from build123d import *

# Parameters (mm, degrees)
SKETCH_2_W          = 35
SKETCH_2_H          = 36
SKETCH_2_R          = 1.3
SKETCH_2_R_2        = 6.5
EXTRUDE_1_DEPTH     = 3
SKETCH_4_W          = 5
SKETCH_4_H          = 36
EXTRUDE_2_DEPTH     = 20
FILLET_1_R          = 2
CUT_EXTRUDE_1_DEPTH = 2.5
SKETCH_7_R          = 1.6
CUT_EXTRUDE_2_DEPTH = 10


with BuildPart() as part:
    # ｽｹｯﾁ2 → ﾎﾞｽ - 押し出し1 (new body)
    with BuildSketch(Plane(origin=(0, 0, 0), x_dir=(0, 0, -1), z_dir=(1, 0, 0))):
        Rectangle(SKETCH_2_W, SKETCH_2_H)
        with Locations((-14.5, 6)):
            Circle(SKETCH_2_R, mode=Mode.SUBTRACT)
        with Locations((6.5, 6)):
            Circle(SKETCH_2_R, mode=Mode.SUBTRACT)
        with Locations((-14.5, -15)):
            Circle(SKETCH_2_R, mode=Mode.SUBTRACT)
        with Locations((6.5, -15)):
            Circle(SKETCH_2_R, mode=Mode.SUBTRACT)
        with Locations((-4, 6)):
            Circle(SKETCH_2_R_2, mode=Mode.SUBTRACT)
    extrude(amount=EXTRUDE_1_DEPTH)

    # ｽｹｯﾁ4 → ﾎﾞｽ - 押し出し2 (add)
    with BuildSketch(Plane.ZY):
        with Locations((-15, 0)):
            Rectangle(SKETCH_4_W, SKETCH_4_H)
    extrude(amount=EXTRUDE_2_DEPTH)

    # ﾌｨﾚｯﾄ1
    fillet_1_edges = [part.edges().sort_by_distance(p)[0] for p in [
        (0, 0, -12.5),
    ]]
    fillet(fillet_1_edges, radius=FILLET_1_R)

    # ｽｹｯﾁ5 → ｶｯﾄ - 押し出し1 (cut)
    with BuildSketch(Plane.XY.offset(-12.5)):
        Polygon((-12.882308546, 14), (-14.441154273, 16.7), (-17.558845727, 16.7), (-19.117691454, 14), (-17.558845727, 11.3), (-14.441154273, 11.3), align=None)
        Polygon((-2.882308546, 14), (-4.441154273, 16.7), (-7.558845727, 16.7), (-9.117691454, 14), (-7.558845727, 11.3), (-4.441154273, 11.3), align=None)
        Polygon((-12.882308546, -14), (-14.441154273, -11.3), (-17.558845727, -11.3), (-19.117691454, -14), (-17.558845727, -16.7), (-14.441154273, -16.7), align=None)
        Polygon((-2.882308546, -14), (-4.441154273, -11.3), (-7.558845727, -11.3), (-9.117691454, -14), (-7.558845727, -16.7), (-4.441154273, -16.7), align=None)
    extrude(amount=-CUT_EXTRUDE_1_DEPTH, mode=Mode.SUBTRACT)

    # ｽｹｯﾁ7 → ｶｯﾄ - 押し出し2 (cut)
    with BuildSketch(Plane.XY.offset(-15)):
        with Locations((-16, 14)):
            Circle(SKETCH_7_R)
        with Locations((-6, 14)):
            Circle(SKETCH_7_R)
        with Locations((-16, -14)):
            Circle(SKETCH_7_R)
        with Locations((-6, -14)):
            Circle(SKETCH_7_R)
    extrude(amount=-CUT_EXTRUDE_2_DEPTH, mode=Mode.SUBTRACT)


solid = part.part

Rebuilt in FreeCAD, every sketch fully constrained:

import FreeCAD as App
import Part
import Sketcher
Q = App.Units.Quantity


def edges_at(feature, points):
    """Names of the edges that pass closest to the given points."""
    edges = feature.Shape.Edges
    near = lambda p: min(range(len(edges)), key=lambda i: edges[i].distToShape(Part.Vertex(*p))[0])
    return sorted({f"Edge{near(p) + 1}" for p in points})

doc = App.newDocument("Part")
body = doc.addObject("PartDesign::Body", "Body")

sketch1 = doc.addObject("Sketcher::SketchObject", "Sketch")
body.addObject(sketch1)
sketch1.AttachmentSupport = (doc.YZ_Plane, [""])
sketch1.MapMode = "FlatFace"
sketch1.addGeometry(Part.LineSegment(App.Vector(18, 17.5, 0), App.Vector(-18, 17.5, 0)), False)
sketch1.addGeometry(Part.LineSegment(App.Vector(-18, 17.5, 0), App.Vector(-18, -17.5, 0)), False)
sketch1.addGeometry(Part.LineSegment(App.Vector(-18, -17.5, 0), App.Vector(18, -17.5, 0)), False)
sketch1.addGeometry(Part.LineSegment(App.Vector(18, -17.5, 0), App.Vector(18, 17.5, 0)), False)
sketch1.addGeometry(Part.Circle(App.Vector(-15, 14.5, 0), App.Vector(0, 0, 1), 1.3), False)
sketch1.addGeometry(Part.Circle(App.Vector(-15, -6.5, 0), App.Vector(0, 0, 1), 1.3), False)
sketch1.addGeometry(Part.Circle(App.Vector(6, 14.5, 0), App.Vector(0, 0, 1), 1.3), False)
sketch1.addGeometry(Part.Circle(App.Vector(6, 4, 0), App.Vector(0, 0, 1), 6.5), False)
sketch1.addGeometry(Part.Circle(App.Vector(6, -6.5, 0), App.Vector(0, 0, 1), 1.3), False)
sketch1.addConstraint(Sketcher.Constraint("Coincident", 0, 2, 1, 1))
sketch1.addConstraint(Sketcher.Constraint("Coincident", 1, 2, 2, 1))
sketch1.addConstraint(Sketcher.Constraint("Coincident", 2, 2, 3, 1))
sketch1.addConstraint(Sketcher.Constraint("Coincident", 3, 2, 0, 1))
sketch1.addConstraint(Sketcher.Constraint("Horizontal", 0))
sketch1.addConstraint(Sketcher.Constraint("Vertical", 1))
sketch1.addConstraint(Sketcher.Constraint("Horizontal", 2))
sketch1.addConstraint(Sketcher.Constraint("Vertical", 3))
sketch1.addConstraint(Sketcher.Constraint("Equal", 4, 5))
sketch1.addConstraint(Sketcher.Constraint("Equal", 5, 6))
sketch1.addConstraint(Sketcher.Constraint("Equal", 6, 8))
sketch1.addConstraint(Sketcher.Constraint("Symmetric", 0, 2, 2, 2, -1, 1))
sketch1.addConstraint(Sketcher.Constraint("Horizontal", 4, 3, 6, 3))
sketch1.addConstraint(Sketcher.Constraint("Horizontal", 5, 3, 8, 3))
sketch1.addConstraint(Sketcher.Constraint("Vertical", 4, 3, 5, 3))
sketch1.addConstraint(Sketcher.Constraint("Vertical", 6, 3, 7, 3))
sketch1.addConstraint(Sketcher.Constraint("Vertical", 7, 3, 8, 3))
sketch1.addConstraint(Sketcher.Constraint("Diameter", 7, 13.0))
sketch1.addConstraint(Sketcher.Constraint("Diameter", 4, 2.6))
sketch1.addConstraint(Sketcher.Constraint("DistanceX", 0, 2, 0, 1, 36.0))
sketch1.addConstraint(Sketcher.Constraint("DistanceY", 1, 2, 1, 1, 35.0))
sketch1.addConstraint(Sketcher.Constraint("DistanceX", 4, 3, -1, 1, 15.0))
sketch1.addConstraint(Sketcher.Constraint("DistanceX", -1, 1, 6, 3, 6.0))
sketch1.addConstraint(Sketcher.Constraint("DistanceY", -1, 1, 7, 3, 4.0))
sketch1.addConstraint(Sketcher.Constraint("DistanceY", 5, 3, 4, 3, 21.0))
sketch1.addConstraint(Sketcher.Constraint("DistanceY", 4, 3, 0, 2, 3.0))
pad1 = doc.addObject("PartDesign::Pad", "Pad")
body.addObject(pad1)
pad1.Profile = sketch1
pad1.Length = 3

sketch2 = doc.addObject("Sketcher::SketchObject", "Sketch001")
body.addObject(sketch2)
sketch2.AttachmentSupport = (doc.YZ_Plane, [""])
sketch2.MapMode = "FlatFace"
sketch2.addGeometry(Part.LineSegment(App.Vector(18, -18, 0), App.Vector(-18, -18, 0)), False)
sketch2.addGeometry(Part.LineSegment(App.Vector(-18, -18, 0), App.Vector(-18, -12, 0)), False)
sketch2.addGeometry(Part.LineSegment(App.Vector(-18, -12, 0), App.Vector(18, -12, 0)), False)
sketch2.addGeometry(Part.LineSegment(App.Vector(18, -12, 0), App.Vector(18, -18, 0)), False)
sketch2.addConstraint(Sketcher.Constraint("Coincident", 0, 2, 1, 1))
sketch2.addConstraint(Sketcher.Constraint("Coincident", 1, 2, 2, 1))
sketch2.addConstraint(Sketcher.Constraint("Coincident", 2, 2, 3, 1))
sketch2.addConstraint(Sketcher.Constraint("Coincident", 3, 2, 0, 1))
sketch2.addConstraint(Sketcher.Constraint("Horizontal", 0))
sketch2.addConstraint(Sketcher.Constraint("Vertical", 1))
sketch2.addConstraint(Sketcher.Constraint("Horizontal", 2))
sketch2.addConstraint(Sketcher.Constraint("Vertical", 3))
sketch2.addConstraint(Sketcher.Constraint("DistanceX", 0, 2, 0, 1, 36.0))
sketch2.addConstraint(Sketcher.Constraint("DistanceY", 1, 1, 1, 2, 5.0))
sketch2.addConstraint(Sketcher.Constraint("DistanceX", 0, 2, -1, 1, 18.0))
sketch2.addConstraint(Sketcher.Constraint("DistanceY", 0, 2, -1, 1, 17.5))
pad2 = doc.addObject("PartDesign::Pad", "Pad001")
body.addObject(pad2)
pad2.Profile = sketch2
pad2.Length = 20
pad2.Reversed = True
doc.recompute()

fillet = doc.addObject("PartDesign::Fillet", "Fillet")
body.addObject(fillet)
fillet.Base = (pad2, edges_at(pad2, [(0, 0, -12.5)]))
fillet.Radius = 2

sketch3 = doc.addObject("Sketcher::SketchObject", "Sketch002")
body.addObject(sketch3)
sketch3.AttachmentSupport = (doc.XY_Plane, [""])
sketch3.MapMode = "FlatFace"
sketch3.AttachmentOffset = App.Placement(App.Vector(0, 0, -12.5), App.Rotation())
sketch3.addGeometry(Part.LineSegment(App.Vector(-12.9, 14, 0), App.Vector(-14.4, 16.7, 0)), False)
sketch3.addGeometry(Part.LineSegment(App.Vector(-14.4, 16.7, 0), App.Vector(-17.6, 16.7, 0)), False)
sketch3.addGeometry(Part.LineSegment(App.Vector(-17.6, 16.7, 0), App.Vector(-19.1, 14, 0)), False)
sketch3.addGeometry(Part.LineSegment(App.Vector(-19.1, 14, 0), App.Vector(-17.6, 11.3, 0)), False)
sketch3.addGeometry(Part.LineSegment(App.Vector(-17.6, 11.3, 0), App.Vector(-14.4, 11.3, 0)), False)
sketch3.addGeometry(Part.LineSegment(App.Vector(-14.4, 11.3, 0), App.Vector(-12.9, 14, 0)), False)
sketch3.addGeometry(Part.LineSegment(App.Vector(-2.9, 14, 0), App.Vector(-4.4, 16.7, 0)), False)
sketch3.addGeometry(Part.LineSegment(App.Vector(-4.4, 16.7, 0), App.Vector(-7.6, 16.7, 0)), False)
sketch3.addGeometry(Part.LineSegment(App.Vector(-7.6, 16.7, 0), App.Vector(-9.1, 14, 0)), False)
sketch3.addGeometry(Part.LineSegment(App.Vector(-9.1, 14, 0), App.Vector(-7.6, 11.3, 0)), False)
sketch3.addGeometry(Part.LineSegment(App.Vector(-7.6, 11.3, 0), App.Vector(-4.4, 11.3, 0)), False)
sketch3.addGeometry(Part.LineSegment(App.Vector(-4.4, 11.3, 0), App.Vector(-2.9, 14, 0)), False)
sketch3.addGeometry(Part.LineSegment(App.Vector(-12.9, -14, 0), App.Vector(-14.4, -11.3, 0)), False)
sketch3.addGeometry(Part.LineSegment(App.Vector(-14.4, -11.3, 0), App.Vector(-17.6, -11.3, 0)), False)
sketch3.addGeometry(Part.LineSegment(App.Vector(-17.6, -11.3, 0), App.Vector(-19.1, -14, 0)), False)
sketch3.addGeometry(Part.LineSegment(App.Vector(-19.1, -14, 0), App.Vector(-17.6, -16.7, 0)), False)
sketch3.addGeometry(Part.LineSegment(App.Vector(-17.6, -16.7, 0), App.Vector(-14.4, -16.7, 0)), False)
sketch3.addGeometry(Part.LineSegment(App.Vector(-14.4, -16.7, 0), App.Vector(-12.9, -14, 0)), False)
sketch3.addGeometry(Part.LineSegment(App.Vector(-2.9, -14, 0), App.Vector(-4.4, -11.3, 0)), False)
sketch3.addGeometry(Part.LineSegment(App.Vector(-4.4, -11.3, 0), App.Vector(-7.6, -11.3, 0)), False)
sketch3.addGeometry(Part.LineSegment(App.Vector(-7.6, -11.3, 0), App.Vector(-9.1, -14, 0)), False)
sketch3.addGeometry(Part.LineSegment(App.Vector(-9.1, -14, 0), App.Vector(-7.6, -16.7, 0)), False)
sketch3.addGeometry(Part.LineSegment(App.Vector(-7.6, -16.7, 0), App.Vector(-4.4, -16.7, 0)), False)
sketch3.addGeometry(Part.LineSegment(App.Vector(-4.4, -16.7, 0), App.Vector(-2.9, -14, 0)), False)
sketch3.addConstraint(Sketcher.Constraint("Coincident", 0, 2, 1, 1))
sketch3.addConstraint(Sketcher.Constraint("Coincident", 1, 2, 2, 1))
sketch3.addConstraint(Sketcher.Constraint("Coincident", 2, 2, 3, 1))
sketch3.addConstraint(Sketcher.Constraint("Coincident", 3, 2, 4, 1))
sketch3.addConstraint(Sketcher.Constraint("Coincident", 4, 2, 5, 1))
sketch3.addConstraint(Sketcher.Constraint("Coincident", 5, 2, 0, 1))
sketch3.addConstraint(Sketcher.Constraint("Coincident", 6, 2, 7, 1))
sketch3.addConstraint(Sketcher.Constraint("Coincident", 7, 2, 8, 1))
sketch3.addConstraint(Sketcher.Constraint("Coincident", 8, 2, 9, 1))
sketch3.addConstraint(Sketcher.Constraint("Coincident", 9, 2, 10, 1))
sketch3.addConstraint(Sketcher.Constraint("Coincident", 10, 2, 11, 1))
sketch3.addConstraint(Sketcher.Constraint("Coincident", 11, 2, 6, 1))
sketch3.addConstraint(Sketcher.Constraint("Coincident", 12, 2, 13, 1))
sketch3.addConstraint(Sketcher.Constraint("Coincident", 13, 2, 14, 1))
sketch3.addConstraint(Sketcher.Constraint("Coincident", 14, 2, 15, 1))
sketch3.addConstraint(Sketcher.Constraint("Coincident", 15, 2, 16, 1))
sketch3.addConstraint(Sketcher.Constraint("Coincident", 16, 2, 17, 1))
sketch3.addConstraint(Sketcher.Constraint("Coincident", 17, 2, 12, 1))
sketch3.addConstraint(Sketcher.Constraint("Coincident", 18, 2, 19, 1))
sketch3.addConstraint(Sketcher.Constraint("Coincident", 19, 2, 20, 1))
sketch3.addConstraint(Sketcher.Constraint("Coincident", 20, 2, 21, 1))
sketch3.addConstraint(Sketcher.Constraint("Coincident", 21, 2, 22, 1))
sketch3.addConstraint(Sketcher.Constraint("Coincident", 22, 2, 23, 1))
sketch3.addConstraint(Sketcher.Constraint("Coincident", 23, 2, 18, 1))
sketch3.addConstraint(Sketcher.Constraint("Horizontal", 1))
sketch3.addConstraint(Sketcher.Constraint("Horizontal", 4))
sketch3.addConstraint(Sketcher.Constraint("Horizontal", 7))
sketch3.addConstraint(Sketcher.Constraint("Horizontal", 10))
sketch3.addConstraint(Sketcher.Constraint("Horizontal", 13))
sketch3.addConstraint(Sketcher.Constraint("Horizontal", 16))
sketch3.addConstraint(Sketcher.Constraint("Horizontal", 19))
sketch3.addConstraint(Sketcher.Constraint("Horizontal", 22))
sketch3.addConstraint(Sketcher.Constraint("Symmetric", 4, 2, 12, 2, -1))
sketch3.addConstraint(Sketcher.Constraint("Symmetric", 2, 2, 14, 2, -1))
sketch3.addConstraint(Sketcher.Constraint("Symmetric", 1, 2, 15, 2, -1))
sketch3.addConstraint(Sketcher.Constraint("Symmetric", 5, 2, 17, 2, -1))
sketch3.addConstraint(Sketcher.Constraint("Symmetric", 10, 2, 18, 2, -1))
sketch3.addConstraint(Sketcher.Constraint("Symmetric", 8, 2, 20, 2, -1))
sketch3.addConstraint(Sketcher.Constraint("Symmetric", 7, 2, 21, 2, -1))
sketch3.addConstraint(Sketcher.Constraint("Symmetric", 11, 2, 23, 2, -1))
sketch3.addConstraint(Sketcher.Constraint("Parallel", 0, 3))
sketch3.addConstraint(Sketcher.Constraint("Parallel", 2, 5))
sketch3.addConstraint(Sketcher.Constraint("Parallel", 3, 6))
sketch3.addConstraint(Sketcher.Constraint("Parallel", 5, 8))
sketch3.addConstraint(Sketcher.Constraint("Parallel", 6, 9))
sketch3.addConstraint(Sketcher.Constraint("Parallel", 8, 11))
sketch3.addConstraint(Sketcher.Constraint("Parallel", 9, 12))
sketch3.addConstraint(Sketcher.Constraint("Parallel", 11, 14))
sketch3.addConstraint(Sketcher.Constraint("Parallel", 14, 17))
sketch3.addConstraint(Sketcher.Constraint("Parallel", 17, 20))
sketch3.addConstraint(Sketcher.Constraint("Parallel", 20, 23))
sketch3.addConstraint(Sketcher.Constraint("Horizontal", 2, 2, 5, 2))
sketch3.addConstraint(Sketcher.Constraint("Horizontal", 1, 2, 6, 2))
sketch3.addConstraint(Sketcher.Constraint("Horizontal", 5, 2, 8, 2))
sketch3.addConstraint(Sketcher.Constraint("Horizontal", 4, 2, 9, 2))
sketch3.addConstraint(Sketcher.Constraint("Horizontal", 8, 2, 11, 2))
sketch3.addConstraint(Sketcher.Constraint("Vertical", 1, 2, 3, 2))
sketch3.addConstraint(Sketcher.Constraint("Equal", 4, 7))
sketch3.addConstraint(Sketcher.Constraint("Angle", 0, Q("120 deg")))
sketch3.addConstraint(Sketcher.Constraint("DistanceY", -1, 1, 2, 2, 14.0))
sketch3.addConstraint(Sketcher.Constraint("DistanceX", 0, 2, 6, 2, 10.0))
sketch3.addConstraint(Sketcher.Constraint("DistanceY", -1, 1, 0, 2, 16.7))
sketch3.addConstraint(Sketcher.Constraint("DistanceX", 1, 2, 1, 1, 3.117691))
sketch3.addConstraint(Sketcher.Constraint("DistanceX", 2, 2, -1, 1, 19.117691))
pocket1 = doc.addObject("PartDesign::Pocket", "Pocket")
body.addObject(pocket1)
pocket1.Profile = sketch3
pocket1.Length = 2.5

sketch4 = doc.addObject("Sketcher::SketchObject", "Sketch003")
body.addObject(sketch4)
sketch4.AttachmentSupport = (doc.XY_Plane, [""])
sketch4.MapMode = "FlatFace"
sketch4.AttachmentOffset = App.Placement(App.Vector(0, 0, -15), App.Rotation())
sketch4.addGeometry(Part.Circle(App.Vector(-16, 14, 0), App.Vector(0, 0, 1), 1.6), False)
sketch4.addGeometry(Part.Circle(App.Vector(-6, 14, 0), App.Vector(0, 0, 1), 1.6), False)
sketch4.addGeometry(Part.Circle(App.Vector(-16, -14, 0), App.Vector(0, 0, 1), 1.6), False)
sketch4.addGeometry(Part.Circle(App.Vector(-6, -14, 0), App.Vector(0, 0, 1), 1.6), False)
sketch4.addConstraint(Sketcher.Constraint("Equal", 0, 1))
sketch4.addConstraint(Sketcher.Constraint("Equal", 1, 2))
sketch4.addConstraint(Sketcher.Constraint("Equal", 2, 3))
sketch4.addConstraint(Sketcher.Constraint("Symmetric", 0, 3, 2, 3, -1))
sketch4.addConstraint(Sketcher.Constraint("Symmetric", 1, 3, 3, 3, -1))
sketch4.addConstraint(Sketcher.Constraint("Horizontal", 0, 3, 1, 3))
sketch4.addConstraint(Sketcher.Constraint("Diameter", 0, 3.2))
sketch4.addConstraint(Sketcher.Constraint("DistanceX", 0, 3, -1, 1, 16.0))
sketch4.addConstraint(Sketcher.Constraint("DistanceY", -1, 1, 0, 3, 14.0))
sketch4.addConstraint(Sketcher.Constraint("DistanceX", 1, 3, -1, 1, 6.0))
pocket2 = doc.addObject("PartDesign::Pocket", "Pocket001")
body.addObject(pocket2)
pocket2.Profile = sketch4
pocket2.Length = 10

doc.recompute()
